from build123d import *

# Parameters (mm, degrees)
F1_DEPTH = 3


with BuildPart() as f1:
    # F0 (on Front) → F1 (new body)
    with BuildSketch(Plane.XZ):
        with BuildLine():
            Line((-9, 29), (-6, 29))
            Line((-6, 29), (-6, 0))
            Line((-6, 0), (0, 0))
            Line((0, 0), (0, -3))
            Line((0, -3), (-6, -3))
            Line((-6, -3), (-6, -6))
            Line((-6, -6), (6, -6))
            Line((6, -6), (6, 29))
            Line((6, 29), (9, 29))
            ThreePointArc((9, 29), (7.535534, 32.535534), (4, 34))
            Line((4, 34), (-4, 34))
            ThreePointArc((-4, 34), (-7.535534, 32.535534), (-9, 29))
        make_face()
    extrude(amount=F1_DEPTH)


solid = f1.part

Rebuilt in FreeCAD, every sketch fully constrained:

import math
import FreeCAD as App
import Part
import Sketcher

V = App.Vector

doc = App.newDocument("Part")
params = doc.addObject("Spreadsheet::Sheet", "Params")
for row, (alias, value) in enumerate([
    ("sketch1_radius", "5 mm"),
    ("sketch1_width", "3 mm"),
    ("sketch1_width2", "6 mm"),
    ("sketch1_height", "29 mm"),
    ("pad1_length", "3 mm"),
], start=1):
    params.set(f"A{row}", alias)
    params.set(f"B{row}", "=" + value)
    params.setAlias(f"B{row}", alias)

body = doc.addObject("PartDesign::Body", "Body")

# Sketch on XZ plane
sketch1 = body.newObject("Sketcher::SketchObject", "Sketch")
sketch1.AttachmentSupport = (doc.getObject("XZ_Plane"), [""])
sketch1.MapMode = "FlatFace"
sketch1.addGeometry(Part.LineSegment(V(-9, 29, 0), V(-6, 29, 0)), False)
sketch1.addGeometry(Part.LineSegment(V(-6, 29, 0), V(-6, 0, 0)), False)
sketch1.addGeometry(Part.LineSegment(V(-6, 0, 0), V(0, 0, 0)), False)
sketch1.addGeometry(Part.LineSegment(V(0, 0, 0), V(0, -3, 0)), False)
sketch1.addGeometry(Part.LineSegment(V(0, -3, 0), V(-6, -3, 0)), False)
sketch1.addGeometry(Part.LineSegment(V(-6, -3, 0), V(-6, -6, 0)), False)
sketch1.addGeometry(Part.LineSegment(V(-6, -6, 0), V(6, -6, 0)), False)
sketch1.addGeometry(Part.LineSegment(V(6, -6, 0), V(6, 29, 0)), False)
sketch1.addGeometry(Part.LineSegment(V(6, 29, 0), V(9, 29, 0)), False)
sketch1.addGeometry(Part.ArcOfCircle(Part.Circle(V(4, 29, 0), V(0, 0, 1), 5), math.radians(0), math.radians(90)), False)
sketch1.addGeometry(Part.LineSegment(V(4, 34, 0), V(-4, 34, 0)), False)
sketch1.addGeometry(Part.ArcOfCircle(Part.Circle(V(-4, 29, 0), V(0, 0, 1), 5), math.radians(90), math.radians(180)), False)
sketch1.addConstraint(Sketcher.Constraint("Coincident", 0, 2, 1, 1))
sketch1.addConstraint(Sketcher.Constraint("Coincident", 1, 2, 2, 1))
sketch1.addConstraint(Sketcher.Constraint("Coincident", 2, 2, 3, 1))
sketch1.addConstraint(Sketcher.Constraint("Coincident", 3, 2, 4, 1))
sketch1.addConstraint(Sketcher.Constraint("Coincident", 4, 2, 5, 1))
sketch1.addConstraint(Sketcher.Constraint("Coincident", 5, 2, 6, 1))
sketch1.addConstraint(Sketcher.Constraint("Coincident", 6, 2, 7, 1))
sketch1.addConstraint(Sketcher.Constraint("Coincident", 7, 2, 8, 1))
sketch1.addConstraint(Sketcher.Constraint("Coincident", 8, 2, 9, 1))
sketch1.addConstraint(Sketcher.Constraint("Tangent", 9, 2, 10, 1))
sketch1.addConstraint(Sketcher.Constraint("Tangent", 10, 2, 11, 1))
sketch1.addConstraint(Sketcher.Constraint("Coincident", 11, 2, 0, 1))
sketch1.addConstraint(Sketcher.Constraint("Horizontal", 0))
sketch1.addConstraint(Sketcher.Constraint("Vertical", 1))
sketch1.addConstraint(Sketcher.Constraint("Horizontal", 2))
sketch1.addConstraint(Sketcher.Constraint("Vertical", 3))
sketch1.addConstraint(Sketcher.Constraint("Horizontal", 4))
sketch1.addConstraint(Sketcher.Constraint("Vertical", 5))
sketch1.addConstraint(Sketcher.Constraint("Horizontal", 6))
sketch1.addConstraint(Sketcher.Constraint("Vertical", 7))
sketch1.addConstraint(Sketcher.Constraint("Horizontal", 8))
sketch1.addConstraint(Sketcher.Constraint("Horizontal", 10))
sketch1.addConstraint(Sketcher.Constraint("Coincident", 2, 2, -1, 1))
sketch1.addConstraint(Sketcher.Constraint("Equal", 9, 11))
sketch1.addConstraint(Sketcher.Constraint("Symmetric", 0, 2, 7, 2, -2))
sketch1.addConstraint(Sketcher.Constraint("Horizontal", 11, 3, 0, 2))
sketch1.addConstraint(Sketcher.Constraint("Vertical", 1, 2, 4, 2))
sketch1.addConstraint(Sketcher.Constraint("Equal", 0, 8))
sketch1.addConstraint(Sketcher.Constraint("Equal", 8, 3))
sketch1.addConstraint(Sketcher.Constraint("Equal", 3, 5))
sketch1.addConstraint(Sketcher.Constraint("Radius", 9, 5.0))
sketch1.addConstraint(Sketcher.Constraint("DistanceX", 0, 1, 0, 2, 3.0))
sketch1.addConstraint(Sketcher.Constraint("DistanceX", 2, 1, 2, 2, 6.0))
sketch1.addConstraint(Sketcher.Constraint("DistanceY", 1, 2, 1, 1, 29.0))
sketch1.setExpression("Constraints[30]", "Params.sketch1_radius")
sketch1.setExpression("Constraints[31]", "Params.sketch1_width")
sketch1.setExpression("Constraints[32]", "Params.sketch1_width2")
sketch1.setExpression("Constraints[33]", "Params.sketch1_height")
pad1 = body.newObject("PartDesign::Pad", "Pad")
pad1.Profile = sketch1
pad1.setExpression("Length", "Params.pad1_length")

doc.recompute()
